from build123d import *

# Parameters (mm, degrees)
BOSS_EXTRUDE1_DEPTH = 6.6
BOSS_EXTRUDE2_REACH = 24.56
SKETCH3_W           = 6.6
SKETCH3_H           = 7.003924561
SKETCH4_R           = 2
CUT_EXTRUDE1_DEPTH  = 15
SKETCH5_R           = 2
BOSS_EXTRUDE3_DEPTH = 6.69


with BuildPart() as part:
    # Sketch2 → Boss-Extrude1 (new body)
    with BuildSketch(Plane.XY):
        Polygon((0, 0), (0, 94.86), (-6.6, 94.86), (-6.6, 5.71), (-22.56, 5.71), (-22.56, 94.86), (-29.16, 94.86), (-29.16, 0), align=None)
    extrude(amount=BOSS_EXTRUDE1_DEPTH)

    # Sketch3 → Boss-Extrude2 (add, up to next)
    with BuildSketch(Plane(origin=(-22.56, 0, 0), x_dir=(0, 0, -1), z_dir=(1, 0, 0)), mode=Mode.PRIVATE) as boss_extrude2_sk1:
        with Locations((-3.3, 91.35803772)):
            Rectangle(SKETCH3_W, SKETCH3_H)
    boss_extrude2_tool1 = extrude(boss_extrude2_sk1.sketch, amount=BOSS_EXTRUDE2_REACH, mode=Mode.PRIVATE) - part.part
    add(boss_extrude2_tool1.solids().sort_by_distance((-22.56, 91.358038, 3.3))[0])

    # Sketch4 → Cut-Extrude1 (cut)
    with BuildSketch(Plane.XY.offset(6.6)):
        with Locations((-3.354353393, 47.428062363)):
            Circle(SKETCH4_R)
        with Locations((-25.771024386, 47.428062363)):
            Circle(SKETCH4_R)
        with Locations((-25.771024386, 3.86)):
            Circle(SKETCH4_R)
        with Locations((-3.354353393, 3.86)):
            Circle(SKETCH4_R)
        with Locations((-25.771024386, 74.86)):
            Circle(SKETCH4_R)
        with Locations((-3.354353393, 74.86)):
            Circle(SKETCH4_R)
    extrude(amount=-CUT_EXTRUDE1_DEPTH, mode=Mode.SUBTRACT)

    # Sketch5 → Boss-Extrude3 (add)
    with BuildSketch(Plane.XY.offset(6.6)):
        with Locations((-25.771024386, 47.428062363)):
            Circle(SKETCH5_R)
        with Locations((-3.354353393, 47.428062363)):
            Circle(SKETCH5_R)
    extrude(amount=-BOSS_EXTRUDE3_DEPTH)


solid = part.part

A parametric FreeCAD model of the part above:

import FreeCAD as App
import Part
import Sketcher

V = App.Vector

doc = App.newDocument("Part")
body = doc.addObject("PartDesign::Body", "Body")

sketch1 = body.newObject("Sketcher::SketchObject", "Sketch")
sketch1.AttachmentSupport = (doc.getObject("XY_Plane"), [""])
sketch1.MapMode = "FlatFace"
sketch1.addGeometry([
    Part.LineSegment(V(0, 0, 0), V(0, 95, 0)),
    Part.LineSegment(V(0, 95, 0), V(-7, 95, 0)),
    Part.LineSegment(V(-7, 95, 0), V(-7, 6, 0)),
    Part.LineSegment(V(-7, 6, 0), V(-23, 6, 0)),
    Part.LineSegment(V(-23, 6, 0), V(-23, 95, 0)),
    Part.LineSegment(V(-23, 95, 0), V(-29, 95, 0)),
    Part.LineSegment(V(-29, 95, 0), V(-29, 0, 0)),
    Part.LineSegment(V(-29, 0, 0), V(0, 0, 0)),
], False)
sketch1.addConstraint([
    Sketcher.Constraint("Coincident", 0, 2, 1, 1),
    Sketcher.Constraint("Coincident", 1, 2, 2, 1),
    Sketcher.Constraint("Coincident", 2, 2, 3, 1),
    Sketcher.Constraint("Coincident", 3, 2, 4, 1),
    Sketcher.Constraint("Coincident", 4, 2, 5, 1),
    Sketcher.Constraint("Coincident", 5, 2, 6, 1),
    Sketcher.Constraint("Coincident", 6, 2, 7, 1),
    Sketcher.Constraint("Coincident", 7, 2, 0, 1),
    Sketcher.Constraint("Vertical", 0),
    Sketcher.Constraint("Horizontal", 1),
    Sketcher.Constraint("Vertical", 2),
    Sketcher.Constraint("Horizontal", 3),
    Sketcher.Constraint("Vertical", 4),
    Sketcher.Constraint("Horizontal", 5),
    Sketcher.Constraint("Vertical", 6),
    Sketcher.Constraint("Horizontal", 7),
    Sketcher.Constraint("Coincident", 7, 2, -1, 1),
    Sketcher.Constraint("Horizontal", 1, 2, 4, 2),
    Sketcher.Constraint("Equal", 1, 5),
    Sketcher.Constraint("DistanceX", 1, 2, 1, 1, 6.6),
    Sketcher.Constraint("DistanceX", 3, 2, 3, 1, 15.96),
    Sketcher.Constraint("DistanceY", 0, 1, 0, 2, 94.86),
    Sketcher.Constraint("DistanceY", 2, 2, 2, 1, 89.15),
])
pad1 = body.newObject("PartDesign::Pad", "Pad")
pad1.Profile = sketch1
pad1.Length = 6.6

sketch2 = body.newObject("Sketcher::SketchObject", "Sketch001")
sketch2.AttachmentSupport = (doc.getObject("YZ_Plane"), [""])
sketch2.MapMode = "FlatFace"
sketch2.AttachmentOffset = App.Placement(V(0, 0, -22.56), App.Rotation())
sketch2.addGeometry([
    Part.LineSegment(V(95, 7, 0), V(88, 7, 0)),
    Part.LineSegment(V(88, 7, 0), V(88, 0, 0)),
    Part.LineSegment(V(88, 0, 0), V(95, 0, 0)),
    Part.LineSegment(V(95, 0, 0), V(95, 7, 0)),
], False)
sketch2.addConstraint([
    Sketcher.Constraint("Coincident", 0, 2, 1, 1),
    Sketcher.Constraint("Coincident", 1, 2, 2, 1),
    Sketcher.Constraint("Coincident", 2, 2, 3, 1),
    Sketcher.Constraint("Coincident", 3, 2, 0, 1),
    Sketcher.Constraint("Horizontal", 0),
    Sketcher.Constraint("Vertical", 1),
    Sketcher.Constraint("Horizontal", 2),
    Sketcher.Constraint("Vertical", 3),
    Sketcher.Constraint("PointOnObject", 1, 2, -1),
    Sketcher.Constraint("DistanceY", 1, 2, 1, 1, 6.6),
    Sketcher.Constraint("DistanceX", -1, 1, 2, 2, 94.86),
    Sketcher.Constraint("DistanceX", 0, 2, 0, 1, 7.003925),
])
pad2 = body.newObject("PartDesign::Pad", "Pad001")
pad2.Profile = sketch2
pad2.Type = "UpToFirst"

sketch3 = body.newObject("Sketcher::SketchObject", "Sketch002")
sketch3.AttachmentSupport = (doc.getObject("XY_Plane"), [""])
sketch3.MapMode = "FlatFace"
sketch3.AttachmentOffset = App.Placement(V(0, 0, 6.6), App.Rotation())
sketch3.addGeometry([
    Part.Circle(V(-3.4, 47.4, 0), V(0, 0, 1), 2),
    Part.Circle(V(-25.8, 47.4, 0), V(0, 0, 1), 2),
    Part.Circle(V(-25.8, 3.9, 0), V(0, 0, 1), 2),
    Part.Circle(V(-3.4, 3.9, 0), V(0, 0, 1), 2),
    Part.Circle(V(-25.8, 74.9, 0), V(0, 0, 1), 2),
    Part.Circle(V(-3.4, 74.9, 0), V(0, 0, 1), 2),
], False)
sketch3.addConstraint([
    Sketcher.Constraint("Equal", 0, 1),
    Sketcher.Constraint("Equal", 1, 2),
    Sketcher.Constraint("Equal", 2, 3),
    Sketcher.Constraint("Equal", 3, 4),
    Sketcher.Constraint("Equal", 4, 5),
    Sketcher.Constraint("Horizontal", 0, 3, 1, 3),
    Sketcher.Constraint("Horizontal", 2, 3, 3, 3),
    Sketcher.Constraint("Horizontal", 4, 3, 5, 3),
    Sketcher.Constraint("Vertical", 1, 3, 2, 3),
    Sketcher.Constraint("Vertical", 0, 3, 3, 3),
    Sketcher.Constraint("Vertical", 2, 3, 4, 3),
    Sketcher.Constraint("Vertical", 3, 3, 5, 3),
    Sketcher.Constraint("Diameter", 0, 4.0),
    Sketcher.Constraint("DistanceY", 2, 3, 4, 3, 71.0),
    Sketcher.Constraint("DistanceY", -1, 1, 2, 3, 3.86),
    Sketcher.Constraint("DistanceX", 1, 3, 0, 3, 22.416671),
    Sketcher.Constraint("DistanceX", 0, 3, -1, 1, 3.354353),
    Sketcher.Constraint("DistanceY", -1, 1, 0, 3, 47.428062),
])
pocket1 = body.newObject("PartDesign::Pocket", "Pocket")
pocket1.Profile = sketch3
pocket1.Length = 15

sketch4 = body.newObject("Sketcher::SketchObject", "Sketch003")
sketch4.AttachmentSupport = (doc.getObject("XY_Plane"), [""])
sketch4.MapMode = "FlatFace"
sketch4.AttachmentOffset = App.Placement(V(0, 0, 6.6), App.Rotation())
sketch4.addGeometry([
    Part.Circle(V(-25.8, 47.4, 0), V(0, 0, 1), 2),
    Part.Circle(V(-3.4, 47.4, 0), V(0, 0, 1), 2),
], False)
sketch4.addConstraint([
    Sketcher.Constraint("Equal", 0, 1),
    Sketcher.Constraint("Horizontal", 0, 3, 1, 3),
    Sketcher.Constraint("Diameter", 0, 4.0),
    Sketcher.Constraint("DistanceX", 0, 3, 1, 3, 22.416671),
    Sketcher.Constraint("DistanceX", 0, 3, -1, 1, 25.771024),
    Sketcher.Constraint("DistanceY", -1, 1, 0, 3, 47.428062),
])
pad3 = body.newObject("PartDesign::Pad", "Pad002")
pad3.Profile = sketch4
pad3.Length = 6.69
pad3.Reversed = True

doc.recompute()
